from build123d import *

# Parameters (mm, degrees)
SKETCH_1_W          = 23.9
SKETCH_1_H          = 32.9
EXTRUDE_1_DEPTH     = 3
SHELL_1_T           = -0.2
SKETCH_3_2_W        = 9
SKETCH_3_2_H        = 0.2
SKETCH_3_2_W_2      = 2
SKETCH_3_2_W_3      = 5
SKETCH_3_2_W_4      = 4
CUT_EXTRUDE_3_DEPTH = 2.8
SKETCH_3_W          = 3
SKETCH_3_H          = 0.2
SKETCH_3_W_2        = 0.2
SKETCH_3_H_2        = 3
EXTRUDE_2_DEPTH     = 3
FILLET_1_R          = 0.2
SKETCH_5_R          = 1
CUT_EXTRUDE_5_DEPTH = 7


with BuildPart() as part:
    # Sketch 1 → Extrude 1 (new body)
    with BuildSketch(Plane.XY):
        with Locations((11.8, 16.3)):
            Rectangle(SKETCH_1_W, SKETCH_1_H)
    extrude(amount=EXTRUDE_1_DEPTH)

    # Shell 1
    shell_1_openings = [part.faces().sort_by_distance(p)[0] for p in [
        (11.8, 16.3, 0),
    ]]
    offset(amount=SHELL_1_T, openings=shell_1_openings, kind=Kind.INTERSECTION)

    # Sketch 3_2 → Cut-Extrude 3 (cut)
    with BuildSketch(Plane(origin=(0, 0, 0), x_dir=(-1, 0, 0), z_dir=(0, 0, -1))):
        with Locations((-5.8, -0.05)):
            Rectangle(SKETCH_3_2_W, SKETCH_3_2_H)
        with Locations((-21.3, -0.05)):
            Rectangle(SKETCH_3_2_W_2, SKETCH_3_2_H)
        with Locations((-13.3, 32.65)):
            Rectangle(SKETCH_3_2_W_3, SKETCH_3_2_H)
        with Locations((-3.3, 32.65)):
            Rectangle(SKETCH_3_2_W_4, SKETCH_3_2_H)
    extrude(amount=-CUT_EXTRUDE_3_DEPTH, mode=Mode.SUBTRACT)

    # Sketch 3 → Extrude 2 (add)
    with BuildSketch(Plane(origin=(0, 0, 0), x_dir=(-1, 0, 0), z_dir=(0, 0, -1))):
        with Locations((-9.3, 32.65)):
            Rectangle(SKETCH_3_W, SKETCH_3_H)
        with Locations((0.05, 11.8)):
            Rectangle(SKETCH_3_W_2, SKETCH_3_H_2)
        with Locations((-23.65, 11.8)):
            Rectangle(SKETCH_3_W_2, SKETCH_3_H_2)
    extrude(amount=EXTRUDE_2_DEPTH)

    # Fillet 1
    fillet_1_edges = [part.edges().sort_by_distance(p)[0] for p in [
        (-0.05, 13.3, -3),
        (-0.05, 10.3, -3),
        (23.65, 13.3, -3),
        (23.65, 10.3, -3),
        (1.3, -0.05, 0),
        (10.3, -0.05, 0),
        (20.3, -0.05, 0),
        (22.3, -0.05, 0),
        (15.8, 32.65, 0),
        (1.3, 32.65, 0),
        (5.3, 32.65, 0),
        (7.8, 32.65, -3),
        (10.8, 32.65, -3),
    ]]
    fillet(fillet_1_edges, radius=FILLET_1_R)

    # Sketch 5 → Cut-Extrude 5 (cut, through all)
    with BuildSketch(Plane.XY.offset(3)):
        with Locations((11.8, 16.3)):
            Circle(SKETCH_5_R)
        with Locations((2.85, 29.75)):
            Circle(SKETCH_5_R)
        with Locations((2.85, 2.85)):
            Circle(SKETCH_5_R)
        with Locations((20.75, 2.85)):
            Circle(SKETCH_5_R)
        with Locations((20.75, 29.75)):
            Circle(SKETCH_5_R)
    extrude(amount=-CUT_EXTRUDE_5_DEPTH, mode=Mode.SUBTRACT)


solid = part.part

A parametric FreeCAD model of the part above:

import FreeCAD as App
import Part
import Sketcher

V = App.Vector


def edges_at(feature, points):
    """Names of the edges that pass closest to the given points."""
    edges = feature.Shape.Edges
    near = lambda p: min(range(len(edges)), key=lambda i: edges[i].distToShape(Part.Vertex(*p))[0])
    return sorted({f"Edge{near(p) + 1}" for p in points})


def faces_at(feature, points):
    """Names of the faces that lie closest to the given points."""
    faces = feature.Shape.Faces
    near = lambda p: min(range(len(faces)), key=lambda i: faces[i].distToShape(Part.Vertex(*p))[0])
    return sorted({f"Face{near(p) + 1}" for p in points})

doc = App.newDocument("Part")
body = doc.addObject("PartDesign::Body", "Body")

# Sketch on XY plane
sketch1 = body.newObject("Sketcher::SketchObject", "Sketch")
sketch1.AttachmentSupport = (doc.getObject("XY_Plane"), [""])
sketch1.MapMode = "FlatFace"
sketch1.addGeometry([
    Part.LineSegment(V(0, 33, 0), V(0, 0, 0)),
    Part.LineSegment(V(0, 0, 0), V(24, 0, 0)),
    Part.LineSegment(V(24, 0, 0), V(24, 33, 0)),
    Part.LineSegment(V(24, 33, 0), V(0, 33, 0)),
], False)
sketch1.addConstraint([
    Sketcher.Constraint("Coincident", 0, 2, 1, 1),
    Sketcher.Constraint("Coincident", 1, 2, 2, 1),
    Sketcher.Constraint("Coincident", 2, 2, 3, 1),
    Sketcher.Constraint("Coincident", 3, 2, 0, 1),
    Sketcher.Constraint("Vertical", 0),
    Sketcher.Constraint("Horizontal", 1),
    Sketcher.Constraint("Vertical", 2),
    Sketcher.Constraint("Horizontal", 3),
    Sketcher.Constraint("DistanceX", 1, 1, 1, 2, 23.9),
    Sketcher.Constraint("DistanceY", 0, 2, 0, 1, 32.9),
    Sketcher.Constraint("DistanceX", 0, 2, -1, 1, 0.15),
    Sketcher.Constraint("DistanceY", 0, 2, -1, 1, 0.15),
])
pad1 = body.newObject("PartDesign::Pad", "Pad")
pad1.Profile = sketch1
pad1.Length = 3
doc.recompute()

thickness = body.newObject("PartDesign::Thickness", "Thickness")
thickness.Base = (pad1, faces_at(pad1, [(11.8, 16.3, 0)]))
thickness.Value = 0.2
thickness.Reversed = True
thickness.Join = "Intersection"

# Sketch on XY plane
sketch2 = body.newObject("Sketcher::SketchObject", "Sketch001")
sketch2.AttachmentSupport = (doc.getObject("XY_Plane"), [""])
sketch2.MapMode = "FlatFace"
sketch2.addGeometry([
    Part.LineSegment(V(10.3, 0.05, 0), V(10.3, -0.15, 0)),  # 0
    Part.LineSegment(V(10.3, -0.15, 0), V(1.3, -0.15, 0)),  # 1
    Part.LineSegment(V(1.3, -0.15, 0), V(1.3, 0.05, 0)),  # 2
    Part.LineSegment(V(1.3, 0.05, 0), V(10.3, 0.05, 0)),  # 3
    Part.LineSegment(V(22.3, 0.05, 0), V(22.3, -0.15, 0)),  # 4
    Part.LineSegment(V(22.3, -0.15, 0), V(20.3, -0.15, 0)),  # 5
    Part.LineSegment(V(20.3, -0.15, 0), V(20.3, 0.05, 0)),  # 6
    Part.LineSegment(V(20.3, 0.05, 0), V(22.3, 0.05, 0)),  # 7
    Part.LineSegment(V(15.8, 32.75, 0), V(15.8, 32.55, 0)),  # 8
    Part.LineSegment(V(15.8, 32.55, 0), V(10.8, 32.55, 0)),  # 9
    Part.LineSegment(V(10.8, 32.55, 0), V(10.8, 32.75, 0)),  # 10
    Part.LineSegment(V(10.8, 32.75, 0), V(15.8, 32.75, 0)),  # 11
    Part.LineSegment(V(5.3, 32.75, 0), V(5.3, 32.55, 0)),  # 12
    Part.LineSegment(V(5.3, 32.55, 0), V(1.3, 32.55, 0)),  # 13
    Part.LineSegment(V(1.3, 32.55, 0), V(1.3, 32.75, 0)),  # 14
    Part.LineSegment(V(1.3, 32.75, 0), V(5.3, 32.75, 0)),  # 15
], False)
sketch2.addConstraint([
    Sketcher.Constraint("Coincident", 0, 2, 1, 1),
    Sketcher.Constraint("Coincident", 1, 2, 2, 1),
    Sketcher.Constraint("Coincident", 2, 2, 3, 1),
    Sketcher.Constraint("Coincident", 3, 2, 0, 1),
    Sketcher.Constraint("Coincident", 4, 2, 5, 1),
    Sketcher.Constraint("Coincident", 5, 2, 6, 1),
    Sketcher.Constraint("Coincident", 6, 2, 7, 1),
    Sketcher.Constraint("Coincident", 7, 2, 4, 1),
    Sketcher.Constraint("Coincident", 8, 2, 9, 1),
    Sketcher.Constraint("Coincident", 9, 2, 10, 1),
    Sketcher.Constraint("Coincident", 10, 2, 11, 1),
    Sketcher.Constraint("Coincident", 11, 2, 8, 1),
    Sketcher.Constraint("Coincident", 12, 2, 13, 1),
    Sketcher.Constraint("Coincident", 13, 2, 14, 1),
    Sketcher.Constraint("Coincident", 14, 2, 15, 1),
    Sketcher.Constraint("Coincident", 15, 2, 12, 1),
    Sketcher.Constraint("Vertical", 0),
    Sketcher.Constraint("Horizontal", 1),
    Sketcher.Constraint("Vertical", 2),
    Sketcher.Constraint("Horizontal", 3),
    Sketcher.Constraint("Vertical", 4),
    Sketcher.Constraint("Horizontal", 5),
    Sketcher.Constraint("Vertical", 6),
    Sketcher.Constraint("Horizontal", 7),
    Sketcher.Constraint("Vertical", 8),
    Sketcher.Constraint("Horizontal", 9),
    Sketcher.Constraint("Vertical", 10),
    Sketcher.Constraint("Horizontal", 11),
    Sketcher.Constraint("Vertical", 12),
    Sketcher.Constraint("Horizontal", 13),
    Sketcher.Constraint("Vertical", 14),
    Sketcher.Constraint("Horizontal", 15),
    Sketcher.Constraint("Horizontal", 1, 2, 4, 2),
    Sketcher.Constraint("Horizontal", 3, 2, 6, 2),
    Sketcher.Constraint("Horizontal", 9, 2, 12, 2),
    Sketcher.Constraint("Horizontal", 11, 2, 14, 2),
    Sketcher.Constraint("Vertical", 2, 2, 13, 2),
    Sketcher.Constraint("Equal", 6, 8),
    Sketcher.Constraint("DistanceX", 1, 2, 1, 1, 9.0),
    Sketcher.Constraint("DistanceX", 5, 2, 5, 1, 2.0),
    Sketcher.Constraint("DistanceX", 9, 2, 9, 1, 5.0),
    Sketcher.Constraint("DistanceX", 13, 2, 13, 1, 4.0),
    Sketcher.Constraint("DistanceY", 0, 2, 0, 1, 0.2),
    Sketcher.Constraint("DistanceX", 0, 2, 4, 2, 12.0),
    Sketcher.Constraint("DistanceX", -1, 1, 0, 2, 10.3),
    Sketcher.Constraint("DistanceX", -1, 1, 8, 2, 15.8),
    Sketcher.Constraint("DistanceY", 6, 2, 8, 2, 32.5),
    Sketcher.Constraint("DistanceY", 0, 2, -1, 1, 0.15),
])
pocket1 = body.newObject("PartDesign::Pocket", "Pocket")
pocket1.Profile = sketch2
pocket1.Length = 2.8
pocket1.Reversed = True

# Sketch on XY plane
sketch3 = body.newObject("Sketcher::SketchObject", "Sketch002")
sketch3.AttachmentSupport = (doc.getObject("XY_Plane"), [""])
sketch3.MapMode = "FlatFace"
sketch3.addGeometry([
    Part.LineSegment(V(10.8, 32.75, 0), V(10.8, 32.55, 0)),  # 0
    Part.LineSegment(V(10.8, 32.55, 0), V(7.8, 32.55, 0)),  # 1
    Part.LineSegment(V(7.8, 32.55, 0), V(7.8, 32.75, 0)),  # 2
    Part.LineSegment(V(7.8, 32.75, 0), V(10.8, 32.75, 0)),  # 3
    Part.LineSegment(V(0.05, 13.3, 0), V(0.05, 10.3, 0)),  # 4
    Part.LineSegment(V(0.05, 10.3, 0), V(-0.15, 10.3, 0)),  # 5
    Part.LineSegment(V(-0.15, 10.3, 0), V(-0.15, 13.3, 0)),  # 6
    Part.LineSegment(V(-0.15, 13.3, 0), V(0.05, 13.3, 0)),  # 7
    Part.LineSegment(V(23.75, 13.3, 0), V(23.75, 10.3, 0)),  # 8
    Part.LineSegment(V(23.75, 10.3, 0), V(23.55, 10.3, 0)),  # 9
    Part.LineSegment(V(23.55, 10.3, 0), V(23.55, 13.3, 0)),  # 10
    Part.LineSegment(V(23.55, 13.3, 0), V(23.75, 13.3, 0)),  # 11
], False)
sketch3.addConstraint([
    Sketcher.Constraint("Coincident", 0, 2, 1, 1),
    Sketcher.Constraint("Coincident", 1, 2, 2, 1),
    Sketcher.Constraint("Coincident", 2, 2, 3, 1),
    Sketcher.Constraint("Coincident", 3, 2, 0, 1),
    Sketcher.Constraint("Coincident", 4, 2, 5, 1),
    Sketcher.Constraint("Coincident", 5, 2, 6, 1),
    Sketcher.Constraint("Coincident", 6, 2, 7, 1),
    Sketcher.Constraint("Coincident", 7, 2, 4, 1),
    Sketcher.Constraint("Coincident", 8, 2, 9, 1),
    Sketcher.Constraint("Coincident", 9, 2, 10, 1),
    Sketcher.Constraint("Coincident", 10, 2, 11, 1),
    Sketcher.Constraint("Coincident", 11, 2, 8, 1),
    Sketcher.Constraint("Vertical", 0),
    Sketcher.Constraint("Horizontal", 1),
    Sketcher.Constraint("Vertical", 2),
    Sketcher.Constraint("Horizontal", 3),
    Sketcher.Constraint("Vertical", 4),
    Sketcher.Constraint("Horizontal", 5),
    Sketcher.Constraint("Vertical", 6),
    Sketcher.Constraint("Horizontal", 7),
    Sketcher.Constraint("Vertical", 8),
    Sketcher.Constraint("Horizontal", 9),
    Sketcher.Constraint("Vertical", 10),
    Sketcher.Constraint("Horizontal", 11),
    Sketcher.Constraint("Horizontal", 5, 2, 8, 2),
    Sketcher.Constraint("Horizontal", 7, 2, 10, 2),
    Sketcher.Constraint("Equal", 7, 9),
    Sketcher.Constraint("Equal", 11, 0),
    Sketcher.Constraint("Equal", 3, 4),
    Sketcher.Constraint("DistanceX", 1, 2, 1, 1, 3.0),
    Sketcher.Constraint("DistanceX", 5, 2, 5, 1, 0.2),
    Sketcher.Constraint("DistanceX", -1, 1, 0, 2, 10.8),
    Sketcher.Constraint("DistanceY", -1, 1, 4, 2, 10.3),
    Sketcher.Constraint("DistanceX", 4, 2, 8, 2, 23.7),
    Sketcher.Constraint("DistanceY", -1, 1, 0, 2, 32.55),
    Sketcher.Constraint("DistanceX", -1, 1, 4, 2, 0.05),
])
pad2 = body.newObject("PartDesign::Pad", "Pad001")
pad2.Profile = sketch3
pad2.Length = 3
pad2.Reversed = True
doc.recompute()

fillet = body.newObject("PartDesign::Fillet", "Fillet")
fillet.Base = (pad2, edges_at(pad2, [
    (-0.05, 13.3, -3),
    (-0.05, 10.3, -3),
    (23.65, 13.3, -3),
    (23.65, 10.3, -3),
    (1.3, -0.05, 0),
    (10.3, -0.05, 0),
    (20.3, -0.05, 0),
    (22.3, -0.05, 0),
    (15.8, 32.65, 0),
    (1.3, 32.65, 0),
    (5.3, 32.65, 0),
    (7.8, 32.65, -3),
    (10.8, 32.65, -3),
]))
fillet.Radius = 0.2

# Sketch on XY plane
sketch4 = body.newObject("Sketcher::SketchObject", "Sketch003")
sketch4.AttachmentSupport = (doc.getObject("XY_Plane"), [""])
sketch4.MapMode = "FlatFace"
sketch4.AttachmentOffset = App.Placement(V(0, 0, 3), App.Rotation())
sketch4.addGeometry([
    Part.Circle(V(11.8, 16.3, 0), V(0, 0, 1), 1),  # 0
    Part.Circle(V(2.9, 29.8, 0), V(0, 0, 1), 1),  # 1
    Part.Circle(V(2.9, 2.9, 0), V(0, 0, 1), 1),  # 2
    Part.Circle(V(20.8, 2.9, 0), V(0, 0, 1), 1),  # 3
    Part.Circle(V(20.8, 29.8, 0), V(0, 0, 1), 1),  # 4
], False)
sketch4.addConstraint([
    Sketcher.Constraint("Equal", 0, 1),
    Sketcher.Constraint("Equal", 1, 2),
    Sketcher.Constraint("Equal", 2, 3),
    Sketcher.Constraint("Equal", 3, 4),
    Sketcher.Constraint("Horizontal", 2, 3, 3, 3),
    Sketcher.Constraint("Horizontal", 1, 3, 4, 3),
    Sketcher.Constraint("Vertical", 1, 3, 2, 3),
    Sketcher.Constraint("Vertical", 3, 3, 4, 3),
    Sketcher.Constraint("Diameter", 0, 2.0),
    Sketcher.Constraint("DistanceX", -1, 1, 0, 3, 11.8),
    Sketcher.Constraint("DistanceY", -1, 1, 0, 3, 16.3),
    Sketcher.Constraint("DistanceY", 2, 3, 1, 3, 26.9),
    Sketcher.Constraint("DistanceX", 2, 3, 3, 3, 17.9),
    Sketcher.Constraint("DistanceX", -1, 1, 1, 3, 2.85),
    Sketcher.Constraint("DistanceY", -1, 1, 1, 3, 29.75),
])
pocket2 = body.newObject("PartDesign::Pocket", "Pocket001")
pocket2.Profile = sketch4
pocket2.Type = "ThroughAll"

doc.recompute()
